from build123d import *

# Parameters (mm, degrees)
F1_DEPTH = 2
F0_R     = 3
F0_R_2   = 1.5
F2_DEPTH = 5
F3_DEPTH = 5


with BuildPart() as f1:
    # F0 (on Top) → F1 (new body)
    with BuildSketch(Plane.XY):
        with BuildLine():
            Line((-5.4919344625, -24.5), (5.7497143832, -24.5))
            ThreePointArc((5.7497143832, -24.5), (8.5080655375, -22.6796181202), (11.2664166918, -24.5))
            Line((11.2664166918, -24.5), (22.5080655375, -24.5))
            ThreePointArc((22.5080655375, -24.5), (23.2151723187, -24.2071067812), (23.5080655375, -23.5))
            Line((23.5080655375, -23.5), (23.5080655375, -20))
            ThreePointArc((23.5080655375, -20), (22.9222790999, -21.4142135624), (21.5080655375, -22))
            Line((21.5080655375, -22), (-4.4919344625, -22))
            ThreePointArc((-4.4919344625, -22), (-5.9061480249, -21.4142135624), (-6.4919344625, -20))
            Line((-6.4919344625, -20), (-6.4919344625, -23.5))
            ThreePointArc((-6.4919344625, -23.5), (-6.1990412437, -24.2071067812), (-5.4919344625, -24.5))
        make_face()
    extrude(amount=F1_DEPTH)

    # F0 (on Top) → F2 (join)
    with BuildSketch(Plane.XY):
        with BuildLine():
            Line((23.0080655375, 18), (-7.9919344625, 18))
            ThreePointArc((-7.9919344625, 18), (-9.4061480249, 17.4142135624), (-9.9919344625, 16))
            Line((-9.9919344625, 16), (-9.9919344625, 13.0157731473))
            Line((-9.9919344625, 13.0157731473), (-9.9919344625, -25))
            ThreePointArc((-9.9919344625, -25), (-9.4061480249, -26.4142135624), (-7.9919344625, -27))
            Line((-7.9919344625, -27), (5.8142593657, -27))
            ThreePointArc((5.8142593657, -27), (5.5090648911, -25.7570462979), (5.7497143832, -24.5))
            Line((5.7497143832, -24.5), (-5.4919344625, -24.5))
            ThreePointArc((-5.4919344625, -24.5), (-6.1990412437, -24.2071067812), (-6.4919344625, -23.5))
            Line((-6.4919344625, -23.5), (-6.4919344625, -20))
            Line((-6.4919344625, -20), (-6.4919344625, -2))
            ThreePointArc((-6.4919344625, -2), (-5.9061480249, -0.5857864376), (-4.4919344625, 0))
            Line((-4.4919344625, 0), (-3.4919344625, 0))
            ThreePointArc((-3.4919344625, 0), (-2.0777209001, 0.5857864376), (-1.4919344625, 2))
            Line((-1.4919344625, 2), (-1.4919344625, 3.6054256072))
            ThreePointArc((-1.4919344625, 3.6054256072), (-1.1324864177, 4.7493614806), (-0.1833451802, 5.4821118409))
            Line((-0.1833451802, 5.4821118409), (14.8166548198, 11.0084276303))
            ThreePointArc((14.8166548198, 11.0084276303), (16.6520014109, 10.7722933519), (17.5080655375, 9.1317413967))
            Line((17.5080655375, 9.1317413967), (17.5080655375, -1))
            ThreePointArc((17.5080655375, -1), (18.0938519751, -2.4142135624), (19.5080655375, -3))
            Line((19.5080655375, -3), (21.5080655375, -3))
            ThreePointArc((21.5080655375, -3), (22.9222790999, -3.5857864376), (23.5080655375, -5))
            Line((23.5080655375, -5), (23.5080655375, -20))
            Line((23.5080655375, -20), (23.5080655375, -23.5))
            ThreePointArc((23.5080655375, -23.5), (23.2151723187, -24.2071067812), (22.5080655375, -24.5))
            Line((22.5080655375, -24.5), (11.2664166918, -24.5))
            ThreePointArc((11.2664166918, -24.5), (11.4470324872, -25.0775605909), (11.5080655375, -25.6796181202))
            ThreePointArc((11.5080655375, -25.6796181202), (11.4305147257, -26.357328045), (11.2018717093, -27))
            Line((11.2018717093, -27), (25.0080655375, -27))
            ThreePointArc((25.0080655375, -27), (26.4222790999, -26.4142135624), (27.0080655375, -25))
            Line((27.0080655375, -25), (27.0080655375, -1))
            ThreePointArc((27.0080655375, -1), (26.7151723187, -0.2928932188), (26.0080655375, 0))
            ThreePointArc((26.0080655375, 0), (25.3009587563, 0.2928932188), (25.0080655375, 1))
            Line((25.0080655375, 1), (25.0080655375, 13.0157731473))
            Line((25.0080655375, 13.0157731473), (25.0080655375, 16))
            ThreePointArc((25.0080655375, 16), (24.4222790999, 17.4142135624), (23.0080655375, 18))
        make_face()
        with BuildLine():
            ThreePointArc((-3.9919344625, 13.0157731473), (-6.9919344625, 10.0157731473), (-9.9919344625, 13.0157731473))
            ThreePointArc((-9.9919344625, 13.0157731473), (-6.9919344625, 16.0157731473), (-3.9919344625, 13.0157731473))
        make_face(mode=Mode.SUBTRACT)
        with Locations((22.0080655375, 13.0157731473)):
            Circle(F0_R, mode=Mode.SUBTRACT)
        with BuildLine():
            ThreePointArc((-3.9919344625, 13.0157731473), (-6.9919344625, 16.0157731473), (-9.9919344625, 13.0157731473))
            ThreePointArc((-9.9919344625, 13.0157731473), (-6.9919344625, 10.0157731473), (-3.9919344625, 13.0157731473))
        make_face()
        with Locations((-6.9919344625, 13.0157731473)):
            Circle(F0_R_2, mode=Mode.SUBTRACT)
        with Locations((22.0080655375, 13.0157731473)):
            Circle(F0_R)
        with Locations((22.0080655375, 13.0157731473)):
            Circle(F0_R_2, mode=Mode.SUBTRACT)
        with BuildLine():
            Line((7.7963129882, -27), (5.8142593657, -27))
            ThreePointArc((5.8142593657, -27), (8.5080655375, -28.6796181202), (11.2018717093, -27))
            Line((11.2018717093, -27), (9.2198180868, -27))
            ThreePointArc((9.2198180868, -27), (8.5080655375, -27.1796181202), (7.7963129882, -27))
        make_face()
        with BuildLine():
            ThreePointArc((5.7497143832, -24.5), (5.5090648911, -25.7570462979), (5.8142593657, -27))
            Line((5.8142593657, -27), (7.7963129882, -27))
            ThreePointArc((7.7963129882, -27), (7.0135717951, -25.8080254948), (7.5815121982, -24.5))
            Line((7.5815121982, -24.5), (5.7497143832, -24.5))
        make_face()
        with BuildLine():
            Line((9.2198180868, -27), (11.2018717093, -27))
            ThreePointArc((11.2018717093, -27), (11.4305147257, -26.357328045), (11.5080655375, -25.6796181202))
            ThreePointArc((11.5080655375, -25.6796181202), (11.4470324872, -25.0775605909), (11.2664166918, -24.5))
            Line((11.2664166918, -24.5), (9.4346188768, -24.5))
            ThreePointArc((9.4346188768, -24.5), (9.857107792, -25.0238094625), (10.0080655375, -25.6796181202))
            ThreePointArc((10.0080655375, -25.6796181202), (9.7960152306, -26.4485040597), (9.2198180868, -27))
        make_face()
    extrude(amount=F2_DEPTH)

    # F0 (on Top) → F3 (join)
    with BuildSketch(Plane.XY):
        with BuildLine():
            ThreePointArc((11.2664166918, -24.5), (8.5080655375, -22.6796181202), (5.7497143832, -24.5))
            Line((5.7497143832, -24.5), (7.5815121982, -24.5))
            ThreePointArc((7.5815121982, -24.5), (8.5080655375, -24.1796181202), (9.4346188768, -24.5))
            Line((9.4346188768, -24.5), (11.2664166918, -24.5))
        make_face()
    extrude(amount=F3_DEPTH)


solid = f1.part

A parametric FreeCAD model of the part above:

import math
import FreeCAD as App
import Part
import Sketcher
Q = App.Units.Quantity

doc = App.newDocument("Part")
body = doc.addObject("PartDesign::Body", "Body")

sketch1 = doc.addObject("Sketcher::SketchObject", "Sketch")
body.addObject(sketch1)
sketch1.AttachmentSupport = (doc.XY_Plane, [""])
sketch1.MapMode = "FlatFace"
sketch1.addGeometry(Part.LineSegment(App.Vector(-5.5, -24.5, 0), App.Vector(5.7, -24.5, 0)), False)
sketch1.addGeometry(Part.ArcOfCircle(Part.Circle(App.Vector(8.5, -25.7, 0), App.Vector(0, 0, 1), 3), math.radians(23), math.radians(157)), False)
sketch1.addGeometry(Part.LineSegment(App.Vector(11.3, -24.5, 0), App.Vector(22.5, -24.5, 0)), False)
sketch1.addGeometry(Part.ArcOfCircle(Part.Circle(App.Vector(22.5, -23.5, 0), App.Vector(0, 0, 1), 1), math.radians(-90), math.radians(0)), False)
sketch1.addGeometry(Part.LineSegment(App.Vector(23.5, -23.5, 0), App.Vector(23.5, -20, 0)), False)
sketch1.addGeometry(Part.ArcOfCircle(Part.Circle(App.Vector(21.5, -20, 0), App.Vector(0, 0, 1), 2), math.radians(-90), math.radians(0)), False)
sketch1.addGeometry(Part.LineSegment(App.Vector(21.5, -22, 0), App.Vector(-4.5, -22, 0)), False)
sketch1.addGeometry(Part.ArcOfCircle(Part.Circle(App.Vector(-4.5, -20, 0), App.Vector(0, 0, 1), 2), math.radians(180), math.radians(270)), False)
sketch1.addGeometry(Part.LineSegment(App.Vector(-6.5, -20, 0), App.Vector(-6.5, -23.5, 0)), False)
sketch1.addGeometry(Part.ArcOfCircle(Part.Circle(App.Vector(-5.5, -23.5, 0), App.Vector(0, 0, 1), 1), math.radians(180), math.radians(270)), False)
sketch1.addConstraint(Sketcher.Constraint("Coincident", 0, 2, 1, 2))
sketch1.addConstraint(Sketcher.Constraint("Coincident", 1, 1, 2, 1))
sketch1.addConstraint(Sketcher.Constraint("Tangent", 2, 2, 3, 1))
sketch1.addConstraint(Sketcher.Constraint("Tangent", 3, 2, 4, 1))
sketch1.addConstraint(Sketcher.Constraint("Tangent", 4, 2, 5, 2))
sketch1.addConstraint(Sketcher.Constraint("Tangent", 5, 1, 6, 1))
sketch1.addConstraint(Sketcher.Constraint("Tangent", 6, 2, 7, 2))
sketch1.addConstraint(Sketcher.Constraint("Tangent", 7, 1, 8, 1))
sketch1.addConstraint(Sketcher.Constraint("Tangent", 8, 2, 9, 1))
sketch1.addConstraint(Sketcher.Constraint("Tangent", 9, 2, 0, 1))
sketch1.addConstraint(Sketcher.Constraint("Horizontal", 0))
sketch1.addConstraint(Sketcher.Constraint("Horizontal", 2))
sketch1.addConstraint(Sketcher.Constraint("Vertical", 4))
sketch1.addConstraint(Sketcher.Constraint("Horizontal", 6))
sketch1.addConstraint(Sketcher.Constraint("Vertical", 8))
sketch1.addConstraint(Sketcher.Constraint("Equal", 5, 7))
sketch1.addConstraint(Sketcher.Constraint("Equal", 3, 9))
sketch1.addConstraint(Sketcher.Constraint("Horizontal", 3, 3, 9, 3))
sketch1.addConstraint(Sketcher.Constraint("Equal", 0, 2))
sketch1.addConstraint(Sketcher.Constraint("Radius", 1, Q("3 mm")))
sketch1.addConstraint(Sketcher.Constraint("Radius", 3, Q("1 mm")))
sketch1.addConstraint(Sketcher.Constraint("Radius", 5, Q("2 mm")))
sketch1.addConstraint(Sketcher.Constraint("DistanceX", 6, 2, 6, 1, Q("26 mm")))
sketch1.addConstraint(Sketcher.Constraint("DistanceY", 4, 1, 4, 2, Q("3.5 mm")))
sketch1.addConstraint(Sketcher.Constraint("DistanceY", 5, 3, -1, 1, Q("20 mm")))
sketch1.addConstraint(Sketcher.Constraint("DistanceX", 0, 1, 0, 2, Q("11.241649 mm")))
sketch1.addConstraint(Sketcher.Constraint("DistanceX", -1, 1, 1, 3, Q("8.508066 mm")))
pad1 = doc.addObject("PartDesign::Pad", "Pad")
body.addObject(pad1)
pad1.Profile = sketch1
pad1.Length = 2

sketch2 = doc.addObject("Sketcher::SketchObject", "Sketch001")
body.addObject(sketch2)
sketch2.AttachmentSupport = (doc.XY_Plane, [""])
sketch2.MapMode = "FlatFace"
sketch2.addGeometry(Part.ArcOfCircle(Part.Circle(App.Vector(8.5, -25.7, 0), App.Vector(0, 0, 1), 3), math.radians(-154), math.radians(-26)), False)
sketch2.addGeometry(Part.LineSegment(App.Vector(11.2, -27, 0), App.Vector(25, -27, 0)), False)
sketch2.addGeometry(Part.ArcOfCircle(Part.Circle(App.Vector(25, -25, 0), App.Vector(0, 0, 1), 2), math.radians(-90), math.radians(0)), False)
sketch2.addGeometry(Part.LineSegment(App.Vector(27, -25, 0), App.Vector(27, -1, 0)), False)
sketch2.addGeometry(Part.ArcOfCircle(Part.Circle(App.Vector(26, -1, 0), App.Vector(0, 0, 1), 1), math.radians(0), math.radians(90)), False)
sketch2.addGeometry(Part.ArcOfCircle(Part.Circle(App.Vector(26, 1, 0), App.Vector(0, 0, 1), 1), math.radians(180), math.radians(270)), False)
sketch2.addGeometry(Part.LineSegment(App.Vector(25, 1, 0), App.Vector(25, 16, 0)), False)
sketch2.addGeometry(Part.ArcOfCircle(Part.Circle(App.Vector(23, 16, 0), App.Vector(0, 0, 1), 2), math.radians(0), math.radians(90)), False)
sketch2.addGeometry(Part.LineSegment(App.Vector(23, 18, 0), App.Vector(-8, 18, 0)), False)
sketch2.addGeometry(Part.ArcOfCircle(Part.Circle(App.Vector(-8, 16, 0), App.Vector(0, 0, 1), 2), math.radians(90), math.radians(180)), False)
sketch2.addGeometry(Part.LineSegment(App.Vector(-10, 16, 0), App.Vector(-10, -25, 0)), False)
sketch2.addGeometry(Part.ArcOfCircle(Part.Circle(App.Vector(-8, -25, 0), App.Vector(0, 0, 1), 2), math.radians(180), math.radians(270)), False)
sketch2.addGeometry(Part.LineSegment(App.Vector(-8, -27, 0), App.Vector(5.8, -27, 0)), False)
sketch2.addGeometry(Part.LineSegment(App.Vector(22.5, -24.5, 0), App.Vector(9.4, -24.5, 0)), False)
sketch2.addGeometry(Part.ArcOfCircle(Part.Circle(App.Vector(8.5, -25.7, 0), App.Vector(0, 0, 1), 1.5), math.radians(0), math.radians(52)), False)
sketch2.addGeometry(Part.ArcOfCircle(Part.Circle(App.Vector(8.5, -25.7, 0), App.Vector(0, 0, 1), 1.5), math.radians(-62), math.radians(0)), False)
sketch2.addGeometry(Part.ArcOfCircle(Part.Circle(App.Vector(8.5, -25.7, 0), App.Vector(0, 0, 1), 1.5), math.radians(-118), math.radians(-62)), False)
sketch2.addGeometry(Part.ArcOfCircle(Part.Circle(App.Vector(8.5, -25.7, 0), App.Vector(0, 0, 1), 1.5), math.radians(128), math.radians(242)), False)
sketch2.addGeometry(Part.LineSegment(App.Vector(7.6, -24.5, 0), App.Vector(-5.5, -24.5, 0)), False)
sketch2.addGeometry(Part.ArcOfCircle(Part.Circle(App.Vector(-5.5, -23.5, 0), App.Vector(0, 0, 1), 1), math.radians(180), math.radians(270)), False)
sketch2.addGeometry(Part.LineSegment(App.Vector(-6.5, -23.5, 0), App.Vector(-6.5, -2, 0)), False)
sketch2.addGeometry(Part.ArcOfCircle(Part.Circle(App.Vector(-4.5, -2, 0), App.Vector(0, 0, 1), 2), math.radians(90), math.radians(180)), False)
sketch2.addGeometry(Part.LineSegment(App.Vector(-4.5, 0, 0), App.Vector(-3.5, 0, 0)), False)
sketch2.addGeometry(Part.ArcOfCircle(Part.Circle(App.Vector(-3.5, 2, 0), App.Vector(0, 0, 1), 2), math.radians(-90), math.radians(0)), False)
sketch2.addGeometry(Part.LineSegment(App.Vector(-1.5, 2, 0), App.Vector(-1.5, 3.6, 0)), False)
sketch2.addGeometry(Part.ArcOfCircle(Part.Circle(App.Vector(0.5, 3.6, 0), App.Vector(0, 0, 1), 2), math.radians(110), math.radians(180)), False)
sketch2.addGeometry(Part.LineSegment(App.Vector(-0.2, 5.5, 0), App.Vector(14.8, 11, 0)), False)
sketch2.addGeometry(Part.ArcOfCircle(Part.Circle(App.Vector(15.5, 9.1, 0), App.Vector(0, 0, 1), 2), math.radians(0), math.radians(110)), False)
sketch2.addGeometry(Part.LineSegment(App.Vector(17.5, 9.1, 0), App.Vector(17.5, -1, 0)), False)
sketch2.addGeometry(Part.ArcOfCircle(Part.Circle(App.Vector(19.5, -1, 0), App.Vector(0, 0, 1), 2), math.radians(180), math.radians(270)), False)
sketch2.addGeometry(Part.LineSegment(App.Vector(19.5, -3, 0), App.Vector(21.5, -3, 0)), False)
sketch2.addGeometry(Part.ArcOfCircle(Part.Circle(App.Vector(21.5, -5, 0), App.Vector(0, 0, 1), 2), math.radians(0), math.radians(90)), False)
sketch2.addGeometry(Part.LineSegment(App.Vector(23.5, -5, 0), App.Vector(23.5, -23.5, 0)), False)
sketch2.addGeometry(Part.ArcOfCircle(Part.Circle(App.Vector(22.5, -23.5, 0), App.Vector(0, 0, 1), 1), math.radians(-90), math.radians(0)), False)
sketch2.addGeometry(Part.Circle(App.Vector(-7, 13, 0), App.Vector(0, 0, 1), 1.5), False)
sketch2.addGeometry(Part.Circle(App.Vector(22, 13, 0), App.Vector(0, 0, 1), 1.5), False)
sketch2.addConstraint(Sketcher.Constraint("Coincident", 0, 2, 1, 1))
sketch2.addConstraint(Sketcher.Constraint("Tangent", 1, 2, 2, 1))
sketch2.addConstraint(Sketcher.Constraint("Tangent", 2, 2, 3, 1))
sketch2.addConstraint(Sketcher.Constraint("Tangent", 3, 2, 4, 1))
sketch2.addConstraint(Sketcher.Constraint("Tangent", 4, 2, 5, 2))
sketch2.addConstraint(Sketcher.Constraint("Tangent", 5, 1, 6, 1))
sketch2.addConstraint(Sketcher.Constraint("Tangent", 6, 2, 7, 1))
sketch2.addConstraint(Sketcher.Constraint("Tangent", 7, 2, 8, 1))
sketch2.addConstraint(Sketcher.Constraint("Tangent", 8, 2, 9, 1))
sketch2.addConstraint(Sketcher.Constraint("Tangent", 9, 2, 10, 1))
sketch2.addConstraint(Sketcher.Constraint("Tangent", 10, 2, 11, 1))
sketch2.addConstraint(Sketcher.Constraint("Tangent", 11, 2, 12, 1))
sketch2.addConstraint(Sketcher.Constraint("Coincident", 12, 2, 0, 1))
sketch2.addConstraint(Sketcher.Constraint("Coincident", 13, 2, 14, 2))
sketch2.addConstraint(Sketcher.Constraint("Tangent", 14, 1, 15, 2))
sketch2.addConstraint(Sketcher.Constraint("Tangent", 15, 1, 16, 2))
sketch2.addConstraint(Sketcher.Constraint("Tangent", 16, 1, 17, 2))
sketch2.addConstraint(Sketcher.Constraint("Coincident", 17, 1, 18, 1))
sketch2.addConstraint(Sketcher.Constraint("Tangent", 18, 2, 19, 2))
sketch2.addConstraint(Sketcher.Constraint("Tangent", 19, 1, 20, 1))
sketch2.addConstraint(Sketcher.Constraint("Tangent", 20, 2, 21, 2))
sketch2.addConstraint(Sketcher.Constraint("Tangent", 21, 1, 22, 1))
sketch2.addConstraint(Sketcher.Constraint("Tangent", 22, 2, 23, 1))
sketch2.addConstraint(Sketcher.Constraint("Tangent", 23, 2, 24, 1))
sketch2.addConstraint(Sketcher.Constraint("Tangent", 24, 2, 25, 2))
sketch2.addConstraint(Sketcher.Constraint("Tangent", 25, 1, 26, 1))
sketch2.addConstraint(Sketcher.Constraint("Tangent", 26, 2, 27, 2))
sketch2.addConstraint(Sketcher.Constraint("Tangent", 27, 1, 28, 1))
sketch2.addConstraint(Sketcher.Constraint("Tangent", 28, 2, 29, 1))
sketch2.addConstraint(Sketcher.Constraint("Tangent", 29, 2, 30, 1))
sketch2.addConstraint(Sketcher.Constraint("Tangent", 30, 2, 31, 2))
sketch2.addConstraint(Sketcher.Constraint("Tangent", 31, 1, 32, 1))
sketch2.addConstraint(Sketcher.Constraint("Tangent", 32, 2, 33, 2))
sketch2.addConstraint(Sketcher.Constraint("Tangent", 33, 1, 13, 1))
sketch2.addConstraint(Sketcher.Constraint("Horizontal", 1))
sketch2.addConstraint(Sketcher.Constraint("Vertical", 3))
sketch2.addConstraint(Sketcher.Constraint("Vertical", 6))
sketch2.addConstraint(Sketcher.Constraint("Horizontal", 8))
sketch2.addConstraint(Sketcher.Constraint("Vertical", 10))
sketch2.addConstraint(Sketcher.Constraint("Horizontal", 12))
sketch2.addConstraint(Sketcher.Constraint("Horizontal", 13))
sketch2.addConstraint(Sketcher.Constraint("Horizontal", 18))
sketch2.addConstraint(Sketcher.Constraint("Vertical", 20))
sketch2.addConstraint(Sketcher.Constraint("Horizontal", 22))
sketch2.addConstraint(Sketcher.Constraint("Vertical", 24))
sketch2.addConstraint(Sketcher.Constraint("Vertical", 28))
sketch2.addConstraint(Sketcher.Constraint("Horizontal", 30))
sketch2.addConstraint(Sketcher.Constraint("Vertical", 32))
sketch2.addConstraint(Sketcher.Constraint("Coincident", 14, 3, 0, 3))
sketch2.addConstraint(Sketcher.Constraint("Coincident", 16, 3, 0, 3))
sketch2.addConstraint(Sketcher.Constraint("Equal", 4, 5))
sketch2.addConstraint(Sketcher.Constraint("Equal", 2, 7))
sketch2.addConstraint(Sketcher.Constraint("Equal", 7, 9))
sketch2.addConstraint(Sketcher.Constraint("Equal", 9, 11))
sketch2.addConstraint(Sketcher.Constraint("Equal", 16, 17))
sketch2.addConstraint(Sketcher.Constraint("Equal", 5, 19))
sketch2.addConstraint(Sketcher.Constraint("Equal", 11, 21))
sketch2.addConstraint(Sketcher.Constraint("Equal", 21, 23))
sketch2.addConstraint(Sketcher.Constraint("Equal", 23, 25))
sketch2.addConstraint(Sketcher.Constraint("Equal", 25, 27))
sketch2.addConstraint(Sketcher.Constraint("Equal", 27, 29))
sketch2.addConstraint(Sketcher.Constraint("Equal", 29, 31))
sketch2.addConstraint(Sketcher.Constraint("Equal", 19, 33))
sketch2.addConstraint(Sketcher.Constraint("Equal", 17, 34))
sketch2.addConstraint(Sketcher.Constraint("Equal", 34, 35))
sketch2.addConstraint(Sketcher.Constraint("Symmetric", 4, 3, 5, 3, -1))
sketch2.addConstraint(Sketcher.Constraint("PointOnObject", 21, 1, -1))
sketch2.addConstraint(Sketcher.Constraint("Horizontal", 2, 3, 11, 3))
sketch2.addConstraint(Sketcher.Constraint("Horizontal", 4, 3, 29, 3))
sketch2.addConstraint(Sketcher.Constraint("Horizontal", 19, 3, 33, 3))
sketch2.addConstraint(Sketcher.Constraint("Horizontal", 34, 3, 35, 3))
sketch2.addConstraint(Sketcher.Constraint("Horizontal", 17, 3, 14, 1))
sketch2.addConstraint(Sketcher.Constraint("Horizontal", 12, 2, 15, 1))
sketch2.addConstraint(Sketcher.Constraint("Horizontal", 15, 1, 16, 1))
sketch2.addConstraint(Sketcher.Constraint("Vertical", 1, 2, 5, 1))
sketch2.addConstraint(Sketcher.Constraint("Equal", 1, 12))
sketch2.addConstraint(Sketcher.Constraint("Equal", 13, 18))
sketch2.addConstraint(Sketcher.Constraint("Diameter", 34, Q("3 mm")))
sketch2.addConstraint(Sketcher.Constraint("Radius", 0, Q("3 mm")))
sketch2.addConstraint(Sketcher.Constraint("Radius", 2, Q("2 mm")))
sketch2.addConstraint(Sketcher.Constraint("DistanceX", 8, 2, 8, 1, Q("31 mm")))
sketch2.addConstraint(Sketcher.Constraint("DistanceX", 22, 1, 22, 2, Q("1 mm")))
sketch2.addConstraint(Sketcher.Constraint("DistanceX", 30, 1, 30, 2, Q("2 mm")))
sketch2.addConstraint(Sketcher.Constraint("DistanceY", 3, 1, 3, 2, Q("24 mm")))
sketch2.addConstraint(Sketcher.Constraint("DistanceY", 6, 1, 6, 2, Q("15 mm")))
sketch2.addConstraint(Sketcher.Constraint("DistanceY", 20, 1, 20, 2, Q("21.5 mm")))
sketch2.addConstraint(Sketcher.Constraint("DistanceX", 19, 3, 14, 3, Q("14 mm")))
sketch2.addConstraint(Sketcher.Constraint("DistanceX", 9, 3, 34, 3, Q("1 mm")))
sketch2.addConstraint(Sketcher.Constraint("DistanceX", 35, 3, 7, 3, Q("1 mm")))
sketch2.addConstraint(Sketcher.Constraint("DistanceY", 28, 2, 28, 1, Q("10.131741 mm")))
sketch2.addConstraint(Sketcher.Constraint("DistanceX", 1, 1, 1, 2, Q("13.806194 mm")))
sketch2.addConstraint(Sketcher.Constraint("DistanceY", 24, 1, 24, 2, Q("1.605426 mm")))
sketch2.addConstraint(Sketcher.Constraint("DistanceX", -1, 1, 0, 2, Q("11.201872 mm")))
sketch2.addConstraint(Sketcher.Constraint("DistanceY", 27, 3, 34, 3, Q("3.884032 mm")))
pad2 = doc.addObject("PartDesign::Pad", "Pad001")
body.addObject(pad2)
pad2.Profile = sketch2
pad2.Length = 5

sketch3 = doc.addObject("Sketcher::SketchObject", "Sketch002")
body.addObject(sketch3)
sketch3.AttachmentSupport = (doc.XY_Plane, [""])
sketch3.MapMode = "FlatFace"
sketch3.addGeometry(Part.ArcOfCircle(Part.Circle(App.Vector(8.5, -25.7, 0), App.Vector(0, 0, 1), 3), math.radians(23), math.radians(157)), False)
sketch3.addGeometry(Part.LineSegment(App.Vector(5.7, -24.5, 0), App.Vector(7.6, -24.5, 0)), False)
sketch3.addGeometry(Part.ArcOfCircle(Part.Circle(App.Vector(8.5, -25.7, 0), App.Vector(0, 0, 1), 1.5), math.radians(52), math.radians(128)), False)
sketch3.addGeometry(Part.LineSegment(App.Vector(9.4, -24.5, 0), App.Vector(11.3, -24.5, 0)), False)
sketch3.addConstraint(Sketcher.Constraint("Coincident", 0, 2, 1, 1))
sketch3.addConstraint(Sketcher.Constraint("Coincident", 1, 2, 2, 2))
sketch3.addConstraint(Sketcher.Constraint("Coincident", 2, 1, 3, 1))
sketch3.addConstraint(Sketcher.Constraint("Coincident", 3, 2, 0, 1))
sketch3.addConstraint(Sketcher.Constraint("Horizontal", 1))
sketch3.addConstraint(Sketcher.Constraint("Horizontal", 3))
sketch3.addConstraint(Sketcher.Constraint("Coincident", 2, 3, 0, 3))
sketch3.addConstraint(Sketcher.Constraint("Horizontal", 1, 2, 2, 1))
sketch3.addConstraint(Sketcher.Constraint("Radius", 0, Q("3 mm")))
sketch3.addConstraint(Sketcher.Constraint("Radius", 2, Q("1.5 mm")))
sketch3.addConstraint(Sketcher.Constraint("DistanceY", 0, 2, -1, 1, Q("24.5 mm")))
sketch3.addConstraint(Sketcher.Constraint("DistanceX", 1, 1, 1, 2, Q("1.831798 mm")))
sketch3.addConstraint(Sketcher.Constraint("DistanceX", -1, 1, 2, 1, Q("9.434619 mm")))
pad3 = doc.addObject("PartDesign::Pad", "Pad002")
body.addObject(pad3)
pad3.Profile = sketch3
pad3.Length = 5

doc.recompute()
